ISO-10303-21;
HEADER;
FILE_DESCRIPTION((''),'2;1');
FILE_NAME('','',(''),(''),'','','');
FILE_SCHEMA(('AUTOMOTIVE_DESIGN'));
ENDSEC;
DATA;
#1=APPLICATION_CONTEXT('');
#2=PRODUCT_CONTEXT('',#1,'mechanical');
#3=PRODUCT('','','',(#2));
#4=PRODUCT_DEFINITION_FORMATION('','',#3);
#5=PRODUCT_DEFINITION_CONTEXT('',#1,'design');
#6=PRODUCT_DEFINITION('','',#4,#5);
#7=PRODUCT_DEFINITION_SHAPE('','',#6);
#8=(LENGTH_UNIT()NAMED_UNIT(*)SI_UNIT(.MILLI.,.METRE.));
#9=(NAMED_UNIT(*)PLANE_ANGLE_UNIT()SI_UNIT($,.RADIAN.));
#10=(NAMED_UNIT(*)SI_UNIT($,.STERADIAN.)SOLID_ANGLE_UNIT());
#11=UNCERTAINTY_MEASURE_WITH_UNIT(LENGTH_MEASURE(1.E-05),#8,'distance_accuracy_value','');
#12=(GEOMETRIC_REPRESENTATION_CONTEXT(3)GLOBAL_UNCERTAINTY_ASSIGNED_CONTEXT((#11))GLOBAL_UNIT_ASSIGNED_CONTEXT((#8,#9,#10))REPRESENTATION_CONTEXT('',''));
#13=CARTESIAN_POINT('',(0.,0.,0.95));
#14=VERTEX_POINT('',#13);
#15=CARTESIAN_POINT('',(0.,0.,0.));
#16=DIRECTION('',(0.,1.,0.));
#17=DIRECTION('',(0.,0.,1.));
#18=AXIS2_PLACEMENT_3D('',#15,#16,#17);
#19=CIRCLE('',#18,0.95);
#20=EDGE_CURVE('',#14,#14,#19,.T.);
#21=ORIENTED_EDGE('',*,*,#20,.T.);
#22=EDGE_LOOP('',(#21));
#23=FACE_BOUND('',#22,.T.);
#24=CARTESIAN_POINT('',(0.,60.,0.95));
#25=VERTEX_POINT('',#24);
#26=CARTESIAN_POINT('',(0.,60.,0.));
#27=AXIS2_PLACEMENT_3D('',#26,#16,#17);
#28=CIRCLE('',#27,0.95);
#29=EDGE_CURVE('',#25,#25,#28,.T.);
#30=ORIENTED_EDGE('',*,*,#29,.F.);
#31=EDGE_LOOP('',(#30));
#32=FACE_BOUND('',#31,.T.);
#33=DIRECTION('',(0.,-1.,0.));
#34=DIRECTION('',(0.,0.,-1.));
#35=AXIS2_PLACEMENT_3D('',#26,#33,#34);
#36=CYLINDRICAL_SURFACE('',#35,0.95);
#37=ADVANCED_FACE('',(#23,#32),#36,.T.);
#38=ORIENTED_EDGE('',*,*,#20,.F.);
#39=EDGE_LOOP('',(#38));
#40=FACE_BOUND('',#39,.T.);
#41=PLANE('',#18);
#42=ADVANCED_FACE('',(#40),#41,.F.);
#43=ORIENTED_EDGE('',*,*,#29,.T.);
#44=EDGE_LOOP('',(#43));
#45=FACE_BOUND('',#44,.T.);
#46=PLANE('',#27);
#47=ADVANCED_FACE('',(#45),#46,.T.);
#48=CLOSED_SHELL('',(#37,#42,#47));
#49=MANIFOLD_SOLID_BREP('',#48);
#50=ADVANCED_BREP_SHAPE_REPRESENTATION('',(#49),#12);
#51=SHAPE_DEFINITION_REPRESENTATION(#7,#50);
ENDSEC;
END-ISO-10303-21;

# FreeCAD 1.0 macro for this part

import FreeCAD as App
import Part
import Sketcher

V = App.Vector

doc = App.newDocument("Part")
params = doc.addObject("Spreadsheet::Sheet", "Params")
for row, (alias, value) in enumerate([
    ("sketch1_diameter", "1.9 mm"),
    ("pad1_length", "60 mm"),
], start=1):
    params.set(f"A{row}", alias)
    params.set(f"B{row}", "=" + value)
    params.setAlias(f"B{row}", alias)

body = doc.addObject("PartDesign::Body", "Body")

sketch1 = body.newObject("Sketcher::SketchObject", "Sketch")
sketch1.AttachmentSupport = (doc.getObject("XZ_Plane"), [""])
sketch1.MapMode = "FlatFace"
sketch1.addGeometry(Part.Circle(V(0, 0, 0), V(0, 0, 1), 0.9), False)
sketch1.addConstraint([
    Sketcher.Constraint("Coincident", 0, 3, -1, 1),
    Sketcher.Constraint("Diameter", 0, 1.9),
])
sketch1.setExpression("Constraints[1]", "Params.sketch1_diameter")
pad1 = body.newObject("PartDesign::Pad", "Pad")
pad1.Profile = sketch1
pad1.setExpression("Length", "Params.pad1_length")
pad1.Reversed = True

doc.recompute()
